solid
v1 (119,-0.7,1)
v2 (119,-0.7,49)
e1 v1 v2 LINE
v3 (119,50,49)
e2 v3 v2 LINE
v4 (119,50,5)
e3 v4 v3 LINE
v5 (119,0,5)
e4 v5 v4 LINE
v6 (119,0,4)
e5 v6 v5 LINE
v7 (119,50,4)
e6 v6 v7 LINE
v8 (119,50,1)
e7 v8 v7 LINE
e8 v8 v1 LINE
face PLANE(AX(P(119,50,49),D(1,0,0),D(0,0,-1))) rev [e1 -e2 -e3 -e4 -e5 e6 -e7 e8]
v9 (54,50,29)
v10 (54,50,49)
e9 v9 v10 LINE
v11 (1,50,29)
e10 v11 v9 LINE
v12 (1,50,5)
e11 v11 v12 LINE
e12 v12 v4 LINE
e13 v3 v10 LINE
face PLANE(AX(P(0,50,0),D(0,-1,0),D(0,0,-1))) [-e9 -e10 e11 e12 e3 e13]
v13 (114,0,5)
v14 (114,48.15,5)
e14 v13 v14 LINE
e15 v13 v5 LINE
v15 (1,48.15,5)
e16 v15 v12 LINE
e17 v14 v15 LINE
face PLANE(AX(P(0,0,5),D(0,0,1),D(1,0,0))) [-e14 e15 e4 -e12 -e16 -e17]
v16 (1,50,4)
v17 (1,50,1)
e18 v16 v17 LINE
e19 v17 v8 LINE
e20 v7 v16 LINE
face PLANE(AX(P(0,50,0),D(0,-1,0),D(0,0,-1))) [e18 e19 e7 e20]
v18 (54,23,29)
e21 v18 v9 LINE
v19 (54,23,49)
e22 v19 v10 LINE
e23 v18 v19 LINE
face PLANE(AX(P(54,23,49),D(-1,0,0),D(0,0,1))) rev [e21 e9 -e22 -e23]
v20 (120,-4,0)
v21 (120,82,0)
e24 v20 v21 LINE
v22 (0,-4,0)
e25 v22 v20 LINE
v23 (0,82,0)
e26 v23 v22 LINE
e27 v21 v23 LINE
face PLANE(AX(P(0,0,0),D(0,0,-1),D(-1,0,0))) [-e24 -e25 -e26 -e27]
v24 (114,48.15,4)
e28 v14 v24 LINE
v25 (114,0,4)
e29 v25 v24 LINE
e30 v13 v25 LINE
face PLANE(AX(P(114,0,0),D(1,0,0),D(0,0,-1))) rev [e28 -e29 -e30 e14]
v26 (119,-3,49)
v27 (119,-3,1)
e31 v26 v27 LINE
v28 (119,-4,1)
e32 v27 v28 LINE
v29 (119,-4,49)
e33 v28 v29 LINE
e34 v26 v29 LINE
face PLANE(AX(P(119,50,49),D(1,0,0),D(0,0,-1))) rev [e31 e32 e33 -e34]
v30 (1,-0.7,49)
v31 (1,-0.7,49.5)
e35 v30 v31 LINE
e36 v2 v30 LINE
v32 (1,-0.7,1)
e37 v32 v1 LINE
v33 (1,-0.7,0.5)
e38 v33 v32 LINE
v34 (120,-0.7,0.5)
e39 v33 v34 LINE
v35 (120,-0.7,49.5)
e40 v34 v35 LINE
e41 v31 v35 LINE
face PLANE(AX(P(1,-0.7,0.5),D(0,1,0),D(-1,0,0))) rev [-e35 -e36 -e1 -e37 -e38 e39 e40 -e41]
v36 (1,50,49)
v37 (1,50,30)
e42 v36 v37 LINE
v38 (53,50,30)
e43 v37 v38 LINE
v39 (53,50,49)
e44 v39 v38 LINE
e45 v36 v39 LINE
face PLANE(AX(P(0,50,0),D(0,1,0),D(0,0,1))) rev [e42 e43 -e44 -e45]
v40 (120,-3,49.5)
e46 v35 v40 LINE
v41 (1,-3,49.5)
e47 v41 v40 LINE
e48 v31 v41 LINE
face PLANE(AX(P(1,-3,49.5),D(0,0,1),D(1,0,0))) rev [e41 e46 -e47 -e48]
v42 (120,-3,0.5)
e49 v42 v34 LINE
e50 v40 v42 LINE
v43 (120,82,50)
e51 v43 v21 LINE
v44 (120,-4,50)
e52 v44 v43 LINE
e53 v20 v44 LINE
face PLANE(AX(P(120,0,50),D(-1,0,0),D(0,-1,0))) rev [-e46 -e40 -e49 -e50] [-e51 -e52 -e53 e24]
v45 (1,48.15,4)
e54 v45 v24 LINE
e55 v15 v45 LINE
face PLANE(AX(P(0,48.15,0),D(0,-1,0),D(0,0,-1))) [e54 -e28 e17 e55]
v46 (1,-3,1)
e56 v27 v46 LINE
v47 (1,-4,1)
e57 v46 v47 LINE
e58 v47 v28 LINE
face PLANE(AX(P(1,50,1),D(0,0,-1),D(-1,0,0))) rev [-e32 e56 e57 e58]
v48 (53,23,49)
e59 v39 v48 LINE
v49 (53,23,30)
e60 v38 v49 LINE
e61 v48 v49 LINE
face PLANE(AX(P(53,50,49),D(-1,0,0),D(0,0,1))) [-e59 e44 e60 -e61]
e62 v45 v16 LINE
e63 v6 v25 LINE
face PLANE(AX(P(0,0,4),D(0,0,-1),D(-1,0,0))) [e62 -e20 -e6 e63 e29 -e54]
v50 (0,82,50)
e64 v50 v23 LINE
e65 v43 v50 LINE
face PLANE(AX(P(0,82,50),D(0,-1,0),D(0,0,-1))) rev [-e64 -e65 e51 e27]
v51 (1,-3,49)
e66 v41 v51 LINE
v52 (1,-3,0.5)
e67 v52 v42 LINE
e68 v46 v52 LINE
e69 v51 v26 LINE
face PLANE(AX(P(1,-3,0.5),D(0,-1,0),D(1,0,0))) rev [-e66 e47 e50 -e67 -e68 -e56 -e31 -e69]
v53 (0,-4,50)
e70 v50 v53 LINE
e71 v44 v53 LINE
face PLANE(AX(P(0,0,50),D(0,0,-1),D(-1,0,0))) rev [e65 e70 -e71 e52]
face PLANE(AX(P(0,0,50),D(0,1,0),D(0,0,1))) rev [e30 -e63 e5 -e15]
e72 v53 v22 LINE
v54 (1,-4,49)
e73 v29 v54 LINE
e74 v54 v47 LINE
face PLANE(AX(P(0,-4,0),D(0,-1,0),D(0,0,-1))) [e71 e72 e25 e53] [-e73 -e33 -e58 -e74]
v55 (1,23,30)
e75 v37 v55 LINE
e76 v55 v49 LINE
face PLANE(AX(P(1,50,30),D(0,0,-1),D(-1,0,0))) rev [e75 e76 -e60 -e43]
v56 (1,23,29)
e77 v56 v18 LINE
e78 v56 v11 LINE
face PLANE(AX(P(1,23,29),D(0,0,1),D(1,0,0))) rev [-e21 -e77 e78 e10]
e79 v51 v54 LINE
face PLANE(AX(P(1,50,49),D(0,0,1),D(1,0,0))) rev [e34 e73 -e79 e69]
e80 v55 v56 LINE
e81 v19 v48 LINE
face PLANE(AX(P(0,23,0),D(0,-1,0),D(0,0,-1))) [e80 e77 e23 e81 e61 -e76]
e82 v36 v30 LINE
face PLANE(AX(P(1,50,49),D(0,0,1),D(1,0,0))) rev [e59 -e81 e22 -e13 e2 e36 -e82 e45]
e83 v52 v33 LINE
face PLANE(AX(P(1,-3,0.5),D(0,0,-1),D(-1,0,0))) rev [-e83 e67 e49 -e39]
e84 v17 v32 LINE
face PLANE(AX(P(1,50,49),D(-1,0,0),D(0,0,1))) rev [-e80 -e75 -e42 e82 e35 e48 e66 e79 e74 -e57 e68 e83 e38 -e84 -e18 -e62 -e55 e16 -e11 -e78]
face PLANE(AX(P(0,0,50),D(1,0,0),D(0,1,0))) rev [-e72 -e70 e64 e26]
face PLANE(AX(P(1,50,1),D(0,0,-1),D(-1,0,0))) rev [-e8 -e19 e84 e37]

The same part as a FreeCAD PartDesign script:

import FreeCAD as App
import Part
import Sketcher
Q = App.Units.Quantity

doc = App.newDocument("Part")
body = doc.addObject("PartDesign::Body", "Body")

sketch1 = doc.addObject("Sketcher::SketchObject", "Sketch")
body.addObject(sketch1)
sketch1.AttachmentSupport = (doc.XY_Plane, [""])
sketch1.MapMode = "FlatFace"
sketch1.addGeometry(Part.LineSegment(App.Vector(0, 82, 0), App.Vector(0, 0, 0)), False)
sketch1.addGeometry(Part.LineSegment(App.Vector(0, 0, 0), App.Vector(120, 0, 0)), False)
sketch1.addGeometry(Part.LineSegment(App.Vector(120, 0, 0), App.Vector(120, 82, 0)), False)
sketch1.addGeometry(Part.LineSegment(App.Vector(120, 82, 0), App.Vector(0, 82, 0)), False)
sketch1.addConstraint(Sketcher.Constraint("Coincident", 0, 2, 1, 1))
sketch1.addConstraint(Sketcher.Constraint("Coincident", 1, 2, 2, 1))
sketch1.addConstraint(Sketcher.Constraint("Coincident", 2, 2, 3, 1))
sketch1.addConstraint(Sketcher.Constraint("Coincident", 3, 2, 0, 1))
sketch1.addConstraint(Sketcher.Constraint("Vertical", 0))
sketch1.addConstraint(Sketcher.Constraint("Horizontal", 1))
sketch1.addConstraint(Sketcher.Constraint("Vertical", 2))
sketch1.addConstraint(Sketcher.Constraint("Horizontal", 3))
sketch1.addConstraint(Sketcher.Constraint("Coincident", 0, 2, -1, 1))
sketch1.addConstraint(Sketcher.Constraint("DistanceX", 1, 1, 1, 2, Q("120 mm")))
sketch1.addConstraint(Sketcher.Constraint("DistanceY", 0, 2, 0, 1, Q("82 mm")))
pad1 = doc.addObject("PartDesign::Pad", "Pad")
body.addObject(pad1)
pad1.Profile = sketch1
pad1.Length = 50

sketch2 = doc.addObject("Sketcher::SketchObject", "Sketch001")
body.addObject(sketch2)
sketch2.AttachmentSupport = (doc.XZ_Plane, [""])
sketch2.MapMode = "FlatFace"
sketch2.addGeometry(Part.LineSegment(App.Vector(1, 49, 0), App.Vector(1, 1, 0)), False)
sketch2.addGeometry(Part.LineSegment(App.Vector(1, 1, 0), App.Vector(119, 1, 0)), False)
sketch2.addGeometry(Part.LineSegment(App.Vector(119, 1, 0), App.Vector(119, 49, 0)), False)
sketch2.addGeometry(Part.LineSegment(App.Vector(119, 49, 0), App.Vector(1, 49, 0)), False)
sketch2.addConstraint(Sketcher.Constraint("Coincident", 0, 2, 1, 1))
sketch2.addConstraint(Sketcher.Constraint("Coincident", 1, 2, 2, 1))
sketch2.addConstraint(Sketcher.Constraint("Coincident", 2, 2, 3, 1))
sketch2.addConstraint(Sketcher.Constraint("Coincident", 3, 2, 0, 1))
sketch2.addConstraint(Sketcher.Constraint("Vertical", 0))
sketch2.addConstraint(Sketcher.Constraint("Horizontal", 1))
sketch2.addConstraint(Sketcher.Constraint("Vertical", 2))
sketch2.addConstraint(Sketcher.Constraint("Horizontal", 3))
sketch2.addConstraint(Sketcher.Constraint("DistanceX", 1, 1, 1, 2, Q("118 mm")))
sketch2.addConstraint(Sketcher.Constraint("DistanceY", 0, 2, 0, 1, Q("48 mm")))
sketch2.addConstraint(Sketcher.Constraint("DistanceX", -1, 1, 0, 2, Q("1 mm")))
sketch2.addConstraint(Sketcher.Constraint("DistanceY", -1, 1, 0, 2, Q("1 mm")))
pocket1 = doc.addObject("PartDesign::Pocket", "Pocket")
body.addObject(pocket1)
pocket1.Profile = sketch2
pocket1.Length = 50

sketch3 = doc.addObject("Sketcher::SketchObject", "Sketch002")
body.addObject(sketch3)
sketch3.AttachmentSupport = (doc.XZ_Plane, [""])
sketch3.MapMode = "FlatFace"
sketch3.AttachmentOffset = App.Placement(App.Vector(0, 0, -50), App.Rotation())
sketch3.addGeometry(Part.LineSegment(App.Vector(1, 49, 0), App.Vector(1, 29, 0)), False)
sketch3.addGeometry(Part.LineSegment(App.Vector(1, 29, 0), App.Vector(54, 29, 0)), False)
sketch3.addGeometry(Part.LineSegment(App.Vector(54, 29, 0), App.Vector(54, 49, 0)), False)
sketch3.addGeometry(Part.LineSegment(App.Vector(54, 49, 0), App.Vector(1, 49, 0)), False)
sketch3.addConstraint(Sketcher.Constraint("Coincident", 0, 2, 1, 1))
sketch3.addConstraint(Sketcher.Constraint("Coincident", 1, 2, 2, 1))
sketch3.addConstraint(Sketcher.Constraint("Coincident", 2, 2, 3, 1))
sketch3.addConstraint(Sketcher.Constraint("Coincident", 3, 2, 0, 1))
sketch3.addConstraint(Sketcher.Constraint("Vertical", 0))
sketch3.addConstraint(Sketcher.Constraint("Horizontal", 1))
sketch3.addConstraint(Sketcher.Constraint("Vertical", 2))
sketch3.addConstraint(Sketcher.Constraint("Horizontal", 3))
sketch3.addConstraint(Sketcher.Constraint("DistanceX", 1, 1, 1, 2, Q("53 mm")))
sketch3.addConstraint(Sketcher.Constraint("DistanceY", 0, 2, 0, 1, Q("20 mm")))
sketch3.addConstraint(Sketcher.Constraint("DistanceX", -1, 1, 0, 2, Q("1 mm")))
sketch3.addConstraint(Sketcher.Constraint("DistanceY", -1, 1, 0, 2, Q("29 mm")))
pad2 = doc.addObject("PartDesign::Pad", "Pad001")
body.addObject(pad2)
pad2.Profile = sketch3
pad2.Length = 27

sketch4 = doc.addObject("Sketcher::SketchObject", "Sketch003")
body.addObject(sketch4)
sketch4.AttachmentSupport = (doc.XZ_Plane, [""])
sketch4.MapMode = "FlatFace"
sketch4.AttachmentOffset = App.Placement(App.Vector(0, 0, -23), App.Rotation())
sketch4.addGeometry(Part.LineSegment(App.Vector(1, 49, 0), App.Vector(1, 30, 0)), False)
sketch4.addGeometry(Part.LineSegment(App.Vector(1, 30, 0), App.Vector(53, 30, 0)), False)
sketch4.addGeometry(Part.LineSegment(App.Vector(53, 30, 0), App.Vector(53, 49, 0)), False)
sketch4.addGeometry(Part.LineSegment(App.Vector(53, 49, 0), App.Vector(1, 49, 0)), False)
sketch4.addConstraint(Sketcher.Constraint("Coincident", 0, 2, 1, 1))
sketch4.addConstraint(Sketcher.Constraint("Coincident", 1, 2, 2, 1))
sketch4.addConstraint(Sketcher.Constraint("Coincident", 2, 2, 3, 1))
sketch4.addConstraint(Sketcher.Constraint("Coincident", 3, 2, 0, 1))
sketch4.addConstraint(Sketcher.Constraint("Vertical", 0))
sketch4.addConstraint(Sketcher.Constraint("Horizontal", 1))
sketch4.addConstraint(Sketcher.Constraint("Vertical", 2))
sketch4.addConstraint(Sketcher.Constraint("Horizontal", 3))
sketch4.addConstraint(Sketcher.Constraint("DistanceX", 1, 1, 1, 2, Q("52 mm")))
sketch4.addConstraint(Sketcher.Constraint("DistanceY", 0, 2, 0, 1, Q("19 mm")))
sketch4.addConstraint(Sketcher.Constraint("DistanceX", -1, 1, 0, 2, Q("1 mm")))
sketch4.addConstraint(Sketcher.Constraint("DistanceY", -1, 1, 0, 2, Q("30 mm")))
pocket2 = doc.addObject("PartDesign::Pocket", "Pocket001")
body.addObject(pocket2)
pocket2.Profile = sketch4
pocket2.Length = 27

sketch5 = doc.addObject("Sketcher::SketchObject", "Sketch004")
body.addObject(sketch5)
sketch5.AttachmentSupport = (doc.XZ_Plane, [""])
sketch5.MapMode = "FlatFace"
sketch5.AttachmentOffset = App.Placement(App.Vector(0, 0, -50), App.Rotation())
sketch5.addGeometry(Part.LineSegment(App.Vector(119, 4, 0), App.Vector(119, 5, 0)), False)
sketch5.addGeometry(Part.LineSegment(App.Vector(119, 5, 0), App.Vector(114, 5, 0)), False)
sketch5.addGeometry(Part.LineSegment(App.Vector(114, 5, 0), App.Vector(114, 4, 0)), False)
sketch5.addGeometry(Part.LineSegment(App.Vector(114, 4, 0), App.Vector(119, 4, 0)), False)
sketch5.addConstraint(Sketcher.Constraint("Coincident", 0, 2, 1, 1))
sketch5.addConstraint(Sketcher.Constraint("Coincident", 1, 2, 2, 1))
sketch5.addConstraint(Sketcher.Constraint("Coincident", 2, 2, 3, 1))
sketch5.addConstraint(Sketcher.Constraint("Coincident", 3, 2, 0, 1))
sketch5.addConstraint(Sketcher.Constraint("Vertical", 0))
sketch5.addConstraint(Sketcher.Constraint("Horizontal", 1))
sketch5.addConstraint(Sketcher.Constraint("Vertical", 2))
sketch5.addConstraint(Sketcher.Constraint("Horizontal", 3))
sketch5.addConstraint(Sketcher.Constraint("DistanceX", 1, 2, 1, 1, Q("5 mm")))
sketch5.addConstraint(Sketcher.Constraint("DistanceY", 0, 1, 0, 2, Q("1 mm")))
sketch5.addConstraint(Sketcher.Constraint("DistanceX", -1, 1, 0, 2, Q("119 mm")))
sketch5.addConstraint(Sketcher.Constraint("DistanceY", -1, 1, 0, 2, Q("5 mm")))
pad3 = doc.addObject("PartDesign::Pad", "Pad002")
body.addObject(pad3)
pad3.Profile = sketch5
pad3.Length = 50

sketch6 = doc.addObject("Sketcher::SketchObject", "Sketch005")
body.addObject(sketch6)
sketch6.AttachmentSupport = (doc.XZ_Plane, [""])
sketch6.MapMode = "FlatFace"
sketch6.AttachmentOffset = App.Placement(App.Vector(0, 0, -50), App.Rotation())
sketch6.addGeometry(Part.LineSegment(App.Vector(114, 4, 0), App.Vector(114, 5, 0)), False)
sketch6.addGeometry(Part.LineSegment(App.Vector(114, 5, 0), App.Vector(1, 5, 0)), False)
sketch6.addGeometry(Part.LineSegment(App.Vector(1, 5, 0), App.Vector(1, 4, 0)), False)
sketch6.addGeometry(Part.LineSegment(App.Vector(1, 4, 0), App.Vector(114, 4, 0)), False)
sketch6.addConstraint(Sketcher.Constraint("Coincident", 0, 2, 1, 1))
sketch6.addConstraint(Sketcher.Constraint("Coincident", 1, 2, 2, 1))
sketch6.addConstraint(Sketcher.Constraint("Coincident", 2, 2, 3, 1))
sketch6.addConstraint(Sketcher.Constraint("Coincident", 3, 2, 0, 1))
sketch6.addConstraint(Sketcher.Constraint("Vertical", 0))
sketch6.addConstraint(Sketcher.Constraint("Horizontal", 1))
sketch6.addConstraint(Sketcher.Constraint("Vertical", 2))
sketch6.addConstraint(Sketcher.Constraint("Horizontal", 3))
sketch6.addConstraint(Sketcher.Constraint("DistanceX", 1, 2, 1, 1, Q("113 mm")))
sketch6.addConstraint(Sketcher.Constraint("DistanceY", 0, 1, 0, 2, Q("1 mm")))
sketch6.addConstraint(Sketcher.Constraint("DistanceX", -1, 1, 0, 2, Q("114 mm")))
sketch6.addConstraint(Sketcher.Constraint("DistanceY", -1, 1, 0, 2, Q("5 mm")))
pad4 = doc.addObject("PartDesign::Pad", "Pad003")
body.addObject(pad4)
pad4.Profile = sketch6
pad4.Length = 1.85

sketch7 = doc.addObject("Sketcher::SketchObject", "Sketch006")
body.addObject(sketch7)
sketch7.AttachmentSupport = (doc.XZ_Plane, [""])
sketch7.MapMode = "FlatFace"
sketch7.addGeometry(Part.LineSegment(App.Vector(0, 50, 0), App.Vector(0, 0, 0)), False)
sketch7.addGeometry(Part.LineSegment(App.Vector(0, 0, 0), App.Vector(120, 0, 0)), False)
sketch7.addGeometry(Part.LineSegment(App.Vector(120, 0, 0), App.Vector(120, 50, 0)), False)
sketch7.addGeometry(Part.LineSegment(App.Vector(120, 50, 0), App.Vector(0, 50, 0)), False)
sketch7.addGeometry(Part.LineSegment(App.Vector(119, 1, 0), App.Vector(1, 1, 0)), False)
sketch7.addGeometry(Part.LineSegment(App.Vector(1, 1, 0), App.Vector(1, 49, 0)), False)
sketch7.addGeometry(Part.LineSegment(App.Vector(1, 49, 0), App.Vector(119, 49, 0)), False)
sketch7.addGeometry(Part.LineSegment(App.Vector(119, 49, 0), App.Vector(119, 1, 0)), False)
sketch7.addConstraint(Sketcher.Constraint("Coincident", 0, 2, 1, 1))
sketch7.addConstraint(Sketcher.Constraint("Coincident", 1, 2, 2, 1))
sketch7.addConstraint(Sketcher.Constraint("Coincident", 2, 2, 3, 1))
sketch7.addConstraint(Sketcher.Constraint("Coincident", 3, 2, 0, 1))
sketch7.addConstraint(Sketcher.Constraint("Coincident", 4, 2, 5, 1))
sketch7.addConstraint(Sketcher.Constraint("Coincident", 5, 2, 6, 1))
sketch7.addConstraint(Sketcher.Constraint("Coincident", 6, 2, 7, 1))
sketch7.addConstraint(Sketcher.Constraint("Coincident", 7, 2, 4, 1))
sketch7.addConstraint(Sketcher.Constraint("Vertical", 0))
sketch7.addConstraint(Sketcher.Constraint("Horizontal", 1))
sketch7.addConstraint(Sketcher.Constraint("Vertical", 2))
sketch7.addConstraint(Sketcher.Constraint("Horizontal", 3))
sketch7.addConstraint(Sketcher.Constraint("Horizontal", 4))
sketch7.addConstraint(Sketcher.Constraint("Vertical", 5))
sketch7.addConstraint(Sketcher.Constraint("Horizontal", 6))
sketch7.addConstraint(Sketcher.Constraint("Vertical", 7))
sketch7.addConstraint(Sketcher.Constraint("Coincident", 0, 2, -1, 1))
sketch7.addConstraint(Sketcher.Constraint("DistanceX", 1, 1, 1, 2, Q("120 mm")))
sketch7.addConstraint(Sketcher.Constraint("DistanceX", 4, 2, 4, 1, Q("118 mm")))
sketch7.addConstraint(Sketcher.Constraint("DistanceY", 0, 2, 0, 1, Q("50 mm")))
sketch7.addConstraint(Sketcher.Constraint("DistanceY", 5, 1, 5, 2, Q("48 mm")))
sketch7.addConstraint(Sketcher.Constraint("DistanceX", -1, 1, 4, 2, Q("1 mm")))
sketch7.addConstraint(Sketcher.Constraint("DistanceY", -1, 1, 4, 2, Q("1 mm")))
pad5 = doc.addObject("PartDesign::Pad", "Pad004")
body.addObject(pad5)
pad5.Profile = sketch7
pad5.Length = 4

sketch8 = doc.addObject("Sketcher::SketchObject", "Sketch007")
body.addObject(sketch8)
sketch8.AttachmentSupport = (doc.YZ_Plane, [""])
sketch8.MapMode = "FlatFace"
sketch8.AttachmentOffset = App.Placement(App.Vector(0, 0, 120), App.Rotation())
sketch8.addGeometry(Part.LineSegment(App.Vector(-0.7, 49.5, 0), App.Vector(-3, 49.5, 0)), False)
sketch8.addGeometry(Part.LineSegment(App.Vector(-3, 49.5, 0), App.Vector(-3, 0.5, 0)), False)
sketch8.addGeometry(Part.LineSegment(App.Vector(-3, 0.5, 0), App.Vector(-0.7, 0.5, 0)), False)
sketch8.addGeometry(Part.LineSegment(App.Vector(-0.7, 0.5, 0), App.Vector(-0.7, 49.5, 0)), False)
sketch8.addConstraint(Sketcher.Constraint("Coincident", 0, 2, 1, 1))
sketch8.addConstraint(Sketcher.Constraint("Coincident", 1, 2, 2, 1))
sketch8.addConstraint(Sketcher.Constraint("Coincident", 2, 2, 3, 1))
sketch8.addConstraint(Sketcher.Constraint("Coincident", 3, 2, 0, 1))
sketch8.addConstraint(Sketcher.Constraint("Horizontal", 0))
sketch8.addConstraint(Sketcher.Constraint("Vertical", 1))
sketch8.addConstraint(Sketcher.Constraint("Horizontal", 2))
sketch8.addConstraint(Sketcher.Constraint("Vertical", 3))
sketch8.addConstraint(Sketcher.Constraint("DistanceY", 1, 2, 1, 1, Q("49 mm")))
sketch8.addConstraint(Sketcher.Constraint("DistanceX", 0, 2, 0, 1, Q("2.3 mm")))
sketch8.addConstraint(Sketcher.Constraint("DistanceX", 0, 2, -1, 1, Q("3 mm")))
sketch8.addConstraint(Sketcher.Constraint("DistanceY", -1, 1, 0, 2, Q("49.5 mm")))
pocket3 = doc.addObject("PartDesign::Pocket", "Pocket002")
body.addObject(pocket3)
pocket3.Profile = sketch8
pocket3.Length = 119

doc.recompute()
